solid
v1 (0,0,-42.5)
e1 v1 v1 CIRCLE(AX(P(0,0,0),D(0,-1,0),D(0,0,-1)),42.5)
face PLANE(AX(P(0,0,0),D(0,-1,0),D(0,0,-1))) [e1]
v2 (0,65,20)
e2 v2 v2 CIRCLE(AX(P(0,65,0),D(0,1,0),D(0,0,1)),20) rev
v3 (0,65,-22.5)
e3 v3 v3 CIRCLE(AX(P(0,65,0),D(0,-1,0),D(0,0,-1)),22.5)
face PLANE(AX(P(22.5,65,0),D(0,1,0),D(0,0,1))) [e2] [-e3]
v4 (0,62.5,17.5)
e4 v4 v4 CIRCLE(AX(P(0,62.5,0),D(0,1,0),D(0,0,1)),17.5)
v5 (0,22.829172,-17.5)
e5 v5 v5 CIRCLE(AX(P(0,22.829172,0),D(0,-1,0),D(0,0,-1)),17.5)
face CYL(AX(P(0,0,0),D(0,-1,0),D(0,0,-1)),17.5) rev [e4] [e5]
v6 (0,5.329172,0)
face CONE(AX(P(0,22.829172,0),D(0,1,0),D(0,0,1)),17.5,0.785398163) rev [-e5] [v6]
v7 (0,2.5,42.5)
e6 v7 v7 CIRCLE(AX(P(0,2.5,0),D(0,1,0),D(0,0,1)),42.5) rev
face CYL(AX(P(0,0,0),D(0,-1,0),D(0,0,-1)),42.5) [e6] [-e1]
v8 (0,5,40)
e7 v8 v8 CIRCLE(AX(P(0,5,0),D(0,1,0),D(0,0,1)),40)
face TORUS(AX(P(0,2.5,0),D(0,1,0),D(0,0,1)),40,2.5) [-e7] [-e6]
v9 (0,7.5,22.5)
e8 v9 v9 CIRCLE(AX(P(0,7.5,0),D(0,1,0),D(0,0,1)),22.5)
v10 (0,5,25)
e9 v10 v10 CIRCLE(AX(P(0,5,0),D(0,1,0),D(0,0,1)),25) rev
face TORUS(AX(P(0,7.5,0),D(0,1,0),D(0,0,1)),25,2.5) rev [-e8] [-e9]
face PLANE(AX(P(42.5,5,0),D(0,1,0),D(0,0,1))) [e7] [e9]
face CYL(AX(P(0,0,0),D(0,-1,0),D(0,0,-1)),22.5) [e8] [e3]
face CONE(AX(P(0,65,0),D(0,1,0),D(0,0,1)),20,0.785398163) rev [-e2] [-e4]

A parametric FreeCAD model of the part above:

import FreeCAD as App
import Part
import Sketcher
from FreeCAD import Vector
Q = App.Units.Quantity


def edges_at(feature, points):
    """Names of the edges that pass closest to the given points."""
    edges = feature.Shape.Edges
    near = lambda p: min(range(len(edges)), key=lambda i: edges[i].distToShape(Part.Vertex(*p))[0])
    return sorted({f"Edge{near(p) + 1}" for p in points})


def add_polygon(sketch, points):
    """Adds a closed chain of lines whose ends are joined by coincident constraints."""
    first, n = sketch.GeometryCount, len(points)
    for a, b in zip(points, points[1:] + points[:1]):
        sketch.addGeometry(Part.LineSegment(App.Vector(*a, 0), App.Vector(*b, 0)), False)
    for i in range(n):
        sketch.addConstraint(Sketcher.Constraint("Coincident", first + i, 2, first + (i + 1) % n, 1))

doc = App.newDocument("Part")
body = doc.addObject("PartDesign::Body", "Body")

# Sketch on XY plane
sketch1 = body.newObject("Sketcher::SketchObject", "Sketch")
sketch1.AttachmentSupport = (doc.getObject("XY_Plane"), [""])
sketch1.MapMode = "FlatFace"
add_polygon(sketch1, [(0, 0), (42, 0), (42, 5), (22, 5), (22, 65), (18, 65), (18, 23), (0, 5)])  # lines 0-7
sketch1.addConstraint([
    Sketcher.Constraint("Horizontal", 0),
    Sketcher.Constraint("Vertical", 1),
    Sketcher.Constraint("Horizontal", 2),
    Sketcher.Constraint("Vertical", 3),
    Sketcher.Constraint("Horizontal", 4),
    Sketcher.Constraint("Vertical", 5),
    Sketcher.Constraint("Vertical", 7),
    Sketcher.Constraint("Coincident", 7, 2, -1, 1),
    Sketcher.Constraint("Equal", 4, 1),
    Sketcher.Constraint("DistanceX", 2, 2, 2, 1, 20.0),
    Sketcher.Constraint("DistanceX", 4, 2, 4, 1, 5.0),
    Sketcher.Constraint("DistanceY", 3, 1, 3, 2, 60.0),
    Sketcher.Constraint("Angle", 6, Q("-135 deg")),
    Sketcher.Constraint("DistanceX", 0, 1, 0, 2, 42.5),
    Sketcher.Constraint("DistanceY", 5, 2, 5, 1, 42.170828),
])
revolution = body.newObject("PartDesign::Revolution", "Revolution")
revolution.Profile = sketch1
revolution.ReferenceAxis = (sketch1, ["V_Axis"])
revolution.Angle = 360
doc.recompute()

fillet = body.newObject("PartDesign::Fillet", "Fillet")
fillet.Base = (revolution, edges_at(revolution, [(0, 5, 42.5), (0, 5, 22.5)]))
fillet.Radius = 2.5
doc.recompute()

chamfer = body.newObject("PartDesign::Chamfer", "Chamfer")
chamfer.Base = (fillet, edges_at(fillet, [(0, 65, 17.5)]))
chamfer.Size = 2.5

doc.recompute()
